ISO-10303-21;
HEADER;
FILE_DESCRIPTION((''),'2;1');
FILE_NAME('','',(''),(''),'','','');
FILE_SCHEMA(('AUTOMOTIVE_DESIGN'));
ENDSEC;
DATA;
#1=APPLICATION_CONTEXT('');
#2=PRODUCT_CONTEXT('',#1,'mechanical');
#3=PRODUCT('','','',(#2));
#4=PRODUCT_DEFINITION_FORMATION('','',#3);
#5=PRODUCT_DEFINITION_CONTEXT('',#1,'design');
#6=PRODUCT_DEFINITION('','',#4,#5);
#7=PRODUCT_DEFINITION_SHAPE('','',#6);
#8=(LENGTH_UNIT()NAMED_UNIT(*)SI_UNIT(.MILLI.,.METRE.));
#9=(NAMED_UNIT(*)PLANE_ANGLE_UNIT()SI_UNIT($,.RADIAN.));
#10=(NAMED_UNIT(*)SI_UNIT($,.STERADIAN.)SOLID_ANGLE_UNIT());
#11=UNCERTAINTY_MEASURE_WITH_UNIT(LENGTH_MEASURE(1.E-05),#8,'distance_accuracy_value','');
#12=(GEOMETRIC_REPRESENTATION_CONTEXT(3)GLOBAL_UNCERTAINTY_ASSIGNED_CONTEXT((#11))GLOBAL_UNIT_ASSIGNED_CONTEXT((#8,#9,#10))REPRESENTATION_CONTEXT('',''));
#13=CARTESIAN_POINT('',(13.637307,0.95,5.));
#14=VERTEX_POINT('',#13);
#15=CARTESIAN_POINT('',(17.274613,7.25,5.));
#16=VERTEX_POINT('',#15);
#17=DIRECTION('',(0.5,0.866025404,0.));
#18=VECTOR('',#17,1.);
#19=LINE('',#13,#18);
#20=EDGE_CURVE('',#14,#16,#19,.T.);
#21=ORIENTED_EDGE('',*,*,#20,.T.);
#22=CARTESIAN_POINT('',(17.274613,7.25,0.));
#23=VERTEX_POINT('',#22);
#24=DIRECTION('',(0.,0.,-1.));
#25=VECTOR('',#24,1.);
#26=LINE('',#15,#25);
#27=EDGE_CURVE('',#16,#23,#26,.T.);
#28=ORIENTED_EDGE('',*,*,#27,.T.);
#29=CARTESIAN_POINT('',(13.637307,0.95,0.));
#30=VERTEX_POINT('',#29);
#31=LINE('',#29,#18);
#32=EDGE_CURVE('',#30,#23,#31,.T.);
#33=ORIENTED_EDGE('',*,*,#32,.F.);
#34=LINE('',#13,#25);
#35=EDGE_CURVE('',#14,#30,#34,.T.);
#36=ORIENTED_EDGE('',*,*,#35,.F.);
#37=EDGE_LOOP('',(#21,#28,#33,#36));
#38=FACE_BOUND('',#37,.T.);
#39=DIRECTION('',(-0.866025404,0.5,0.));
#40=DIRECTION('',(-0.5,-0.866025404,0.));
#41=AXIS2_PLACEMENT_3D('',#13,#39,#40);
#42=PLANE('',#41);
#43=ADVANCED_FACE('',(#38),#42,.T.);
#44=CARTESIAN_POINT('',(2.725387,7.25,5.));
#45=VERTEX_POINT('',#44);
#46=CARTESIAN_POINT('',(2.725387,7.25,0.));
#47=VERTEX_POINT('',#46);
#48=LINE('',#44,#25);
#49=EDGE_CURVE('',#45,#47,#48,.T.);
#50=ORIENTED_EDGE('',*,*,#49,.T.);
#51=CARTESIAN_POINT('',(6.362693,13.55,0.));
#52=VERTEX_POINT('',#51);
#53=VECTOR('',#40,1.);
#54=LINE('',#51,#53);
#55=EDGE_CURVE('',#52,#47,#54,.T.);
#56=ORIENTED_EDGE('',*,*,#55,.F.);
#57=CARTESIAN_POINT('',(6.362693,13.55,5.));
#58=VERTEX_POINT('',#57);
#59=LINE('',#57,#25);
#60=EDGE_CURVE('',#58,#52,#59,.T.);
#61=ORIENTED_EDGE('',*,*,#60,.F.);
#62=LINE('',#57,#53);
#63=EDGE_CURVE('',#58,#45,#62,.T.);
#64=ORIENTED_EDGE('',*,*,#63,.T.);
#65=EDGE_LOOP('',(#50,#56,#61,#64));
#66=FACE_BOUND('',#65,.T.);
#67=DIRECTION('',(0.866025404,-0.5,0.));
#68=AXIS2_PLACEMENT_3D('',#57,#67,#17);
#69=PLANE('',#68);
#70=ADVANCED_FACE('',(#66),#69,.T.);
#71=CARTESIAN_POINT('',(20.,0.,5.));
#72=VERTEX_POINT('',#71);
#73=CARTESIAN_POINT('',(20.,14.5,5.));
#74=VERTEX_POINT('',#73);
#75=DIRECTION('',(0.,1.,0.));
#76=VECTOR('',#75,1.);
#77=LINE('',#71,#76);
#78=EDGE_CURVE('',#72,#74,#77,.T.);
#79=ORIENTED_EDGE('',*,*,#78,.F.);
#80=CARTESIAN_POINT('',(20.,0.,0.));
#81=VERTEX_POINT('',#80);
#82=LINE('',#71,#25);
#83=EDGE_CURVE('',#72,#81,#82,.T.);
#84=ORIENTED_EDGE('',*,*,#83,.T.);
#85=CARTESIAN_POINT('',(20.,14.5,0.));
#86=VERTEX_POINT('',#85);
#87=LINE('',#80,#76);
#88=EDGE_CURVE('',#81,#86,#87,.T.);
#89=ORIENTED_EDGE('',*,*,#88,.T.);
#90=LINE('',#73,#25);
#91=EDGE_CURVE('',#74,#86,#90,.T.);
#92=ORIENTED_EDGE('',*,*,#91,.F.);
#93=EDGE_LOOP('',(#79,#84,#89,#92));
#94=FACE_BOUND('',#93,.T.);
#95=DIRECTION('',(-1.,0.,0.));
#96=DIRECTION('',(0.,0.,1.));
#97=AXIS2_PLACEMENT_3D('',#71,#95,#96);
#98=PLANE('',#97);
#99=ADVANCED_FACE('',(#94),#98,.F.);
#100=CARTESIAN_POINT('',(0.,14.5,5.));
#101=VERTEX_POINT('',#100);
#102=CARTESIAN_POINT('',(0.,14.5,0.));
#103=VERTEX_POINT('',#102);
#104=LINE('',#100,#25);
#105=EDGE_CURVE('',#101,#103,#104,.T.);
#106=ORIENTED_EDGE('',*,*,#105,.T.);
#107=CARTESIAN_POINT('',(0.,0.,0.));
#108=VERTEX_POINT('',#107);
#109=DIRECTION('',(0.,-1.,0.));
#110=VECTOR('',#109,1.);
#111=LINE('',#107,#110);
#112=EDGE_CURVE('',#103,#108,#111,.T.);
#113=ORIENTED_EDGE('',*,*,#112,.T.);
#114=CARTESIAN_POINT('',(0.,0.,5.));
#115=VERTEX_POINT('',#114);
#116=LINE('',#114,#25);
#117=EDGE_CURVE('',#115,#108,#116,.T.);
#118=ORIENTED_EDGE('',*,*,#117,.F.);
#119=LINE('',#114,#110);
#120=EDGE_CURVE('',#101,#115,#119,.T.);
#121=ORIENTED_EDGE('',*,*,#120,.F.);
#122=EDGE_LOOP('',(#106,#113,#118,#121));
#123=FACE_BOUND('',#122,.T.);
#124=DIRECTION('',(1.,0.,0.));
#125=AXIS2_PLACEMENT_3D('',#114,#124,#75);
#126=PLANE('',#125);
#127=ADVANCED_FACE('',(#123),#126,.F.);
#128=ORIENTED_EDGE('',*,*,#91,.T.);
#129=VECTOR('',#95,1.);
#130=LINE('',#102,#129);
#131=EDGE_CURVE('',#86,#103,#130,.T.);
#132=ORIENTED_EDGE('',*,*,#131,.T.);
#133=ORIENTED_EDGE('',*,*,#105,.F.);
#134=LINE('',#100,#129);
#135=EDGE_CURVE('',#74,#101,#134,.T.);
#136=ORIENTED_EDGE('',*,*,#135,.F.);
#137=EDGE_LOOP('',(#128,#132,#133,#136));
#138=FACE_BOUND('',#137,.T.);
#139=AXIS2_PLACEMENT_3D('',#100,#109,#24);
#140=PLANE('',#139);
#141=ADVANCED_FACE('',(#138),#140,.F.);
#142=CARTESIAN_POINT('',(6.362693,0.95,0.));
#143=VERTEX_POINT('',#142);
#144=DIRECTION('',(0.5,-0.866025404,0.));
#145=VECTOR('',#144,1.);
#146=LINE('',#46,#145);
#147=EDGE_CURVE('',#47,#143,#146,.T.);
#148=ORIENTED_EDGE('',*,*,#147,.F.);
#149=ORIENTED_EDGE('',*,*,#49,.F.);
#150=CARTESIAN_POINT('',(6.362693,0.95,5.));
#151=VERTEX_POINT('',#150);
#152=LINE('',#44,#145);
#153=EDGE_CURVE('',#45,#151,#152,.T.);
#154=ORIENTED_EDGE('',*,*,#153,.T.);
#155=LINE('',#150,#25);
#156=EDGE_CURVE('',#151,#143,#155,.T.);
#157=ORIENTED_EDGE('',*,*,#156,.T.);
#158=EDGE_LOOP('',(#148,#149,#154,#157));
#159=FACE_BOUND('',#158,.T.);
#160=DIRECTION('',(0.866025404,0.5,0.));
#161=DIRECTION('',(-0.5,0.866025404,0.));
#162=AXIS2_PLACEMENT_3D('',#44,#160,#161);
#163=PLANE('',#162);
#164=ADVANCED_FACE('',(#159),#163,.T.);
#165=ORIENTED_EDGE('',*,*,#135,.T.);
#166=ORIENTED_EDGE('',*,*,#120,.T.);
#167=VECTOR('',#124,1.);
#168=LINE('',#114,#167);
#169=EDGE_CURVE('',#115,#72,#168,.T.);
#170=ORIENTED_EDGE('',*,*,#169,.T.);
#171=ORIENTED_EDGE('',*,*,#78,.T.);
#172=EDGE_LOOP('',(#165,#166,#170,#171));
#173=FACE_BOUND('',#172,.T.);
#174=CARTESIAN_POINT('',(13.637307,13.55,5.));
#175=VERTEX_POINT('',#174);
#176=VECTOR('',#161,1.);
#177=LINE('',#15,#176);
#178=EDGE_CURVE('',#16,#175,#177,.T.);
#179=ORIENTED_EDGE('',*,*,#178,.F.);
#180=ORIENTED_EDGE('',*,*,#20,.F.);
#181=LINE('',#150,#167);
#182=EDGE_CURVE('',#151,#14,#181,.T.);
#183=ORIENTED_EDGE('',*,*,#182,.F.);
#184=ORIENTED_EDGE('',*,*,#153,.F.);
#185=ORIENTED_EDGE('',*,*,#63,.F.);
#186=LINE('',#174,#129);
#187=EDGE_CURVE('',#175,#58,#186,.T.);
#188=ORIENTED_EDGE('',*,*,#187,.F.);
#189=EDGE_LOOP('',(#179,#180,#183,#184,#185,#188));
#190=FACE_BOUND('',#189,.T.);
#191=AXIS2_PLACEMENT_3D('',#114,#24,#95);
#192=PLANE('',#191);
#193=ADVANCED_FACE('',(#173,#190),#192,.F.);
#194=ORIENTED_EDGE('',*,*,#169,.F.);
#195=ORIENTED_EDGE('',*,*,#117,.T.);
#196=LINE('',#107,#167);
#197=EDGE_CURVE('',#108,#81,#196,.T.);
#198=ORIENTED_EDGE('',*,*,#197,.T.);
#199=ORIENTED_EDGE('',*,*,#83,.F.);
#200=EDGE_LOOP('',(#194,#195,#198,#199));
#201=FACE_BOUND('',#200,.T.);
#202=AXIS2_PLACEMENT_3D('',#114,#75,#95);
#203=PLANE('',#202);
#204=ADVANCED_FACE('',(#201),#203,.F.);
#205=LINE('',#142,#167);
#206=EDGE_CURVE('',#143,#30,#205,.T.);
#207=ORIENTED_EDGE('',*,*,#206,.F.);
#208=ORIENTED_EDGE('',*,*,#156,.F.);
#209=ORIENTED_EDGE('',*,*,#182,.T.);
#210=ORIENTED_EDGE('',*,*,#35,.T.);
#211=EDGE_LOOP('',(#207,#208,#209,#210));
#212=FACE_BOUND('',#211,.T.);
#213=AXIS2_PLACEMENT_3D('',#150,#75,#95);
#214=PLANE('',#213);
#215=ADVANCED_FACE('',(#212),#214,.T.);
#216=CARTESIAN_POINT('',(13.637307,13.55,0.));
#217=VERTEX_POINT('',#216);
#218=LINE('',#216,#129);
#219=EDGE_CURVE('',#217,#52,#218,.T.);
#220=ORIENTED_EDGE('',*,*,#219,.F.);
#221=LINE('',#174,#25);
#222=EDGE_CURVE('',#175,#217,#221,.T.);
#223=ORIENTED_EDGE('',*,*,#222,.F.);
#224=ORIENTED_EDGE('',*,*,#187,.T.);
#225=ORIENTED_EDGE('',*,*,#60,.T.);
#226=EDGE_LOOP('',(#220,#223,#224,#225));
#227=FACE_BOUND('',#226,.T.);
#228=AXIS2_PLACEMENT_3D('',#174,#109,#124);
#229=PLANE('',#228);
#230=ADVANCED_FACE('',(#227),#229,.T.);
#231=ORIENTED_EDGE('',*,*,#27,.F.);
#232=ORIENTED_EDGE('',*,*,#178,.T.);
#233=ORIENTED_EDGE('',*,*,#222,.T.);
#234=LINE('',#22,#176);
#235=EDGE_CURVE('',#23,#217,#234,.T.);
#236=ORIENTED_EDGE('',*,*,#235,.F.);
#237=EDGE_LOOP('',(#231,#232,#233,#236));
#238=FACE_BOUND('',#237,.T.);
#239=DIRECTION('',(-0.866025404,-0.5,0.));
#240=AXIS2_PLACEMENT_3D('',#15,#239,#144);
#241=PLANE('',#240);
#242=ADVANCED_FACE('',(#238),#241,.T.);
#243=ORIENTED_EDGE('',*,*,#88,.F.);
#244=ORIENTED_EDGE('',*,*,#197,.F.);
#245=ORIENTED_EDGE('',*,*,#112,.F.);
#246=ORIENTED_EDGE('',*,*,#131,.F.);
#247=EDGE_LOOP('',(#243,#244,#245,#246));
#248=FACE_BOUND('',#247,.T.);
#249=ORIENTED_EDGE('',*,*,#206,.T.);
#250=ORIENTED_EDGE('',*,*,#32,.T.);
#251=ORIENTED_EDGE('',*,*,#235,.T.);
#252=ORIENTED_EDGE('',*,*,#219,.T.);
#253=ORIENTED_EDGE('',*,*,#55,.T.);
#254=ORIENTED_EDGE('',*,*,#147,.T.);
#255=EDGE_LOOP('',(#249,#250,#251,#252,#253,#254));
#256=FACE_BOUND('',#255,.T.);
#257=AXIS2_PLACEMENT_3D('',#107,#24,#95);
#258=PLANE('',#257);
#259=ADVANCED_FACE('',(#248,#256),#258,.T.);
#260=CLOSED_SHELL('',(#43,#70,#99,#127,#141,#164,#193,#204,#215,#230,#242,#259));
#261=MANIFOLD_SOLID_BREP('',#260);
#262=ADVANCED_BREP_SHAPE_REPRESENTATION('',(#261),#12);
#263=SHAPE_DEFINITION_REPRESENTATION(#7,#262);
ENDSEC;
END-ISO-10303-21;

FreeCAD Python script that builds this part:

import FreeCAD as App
import Part
import Sketcher
Q = App.Units.Quantity


def add_polygon(sketch, points):
    """Adds a closed chain of lines whose ends are joined by coincident constraints."""
    first, n = sketch.GeometryCount, len(points)
    for a, b in zip(points, points[1:] + points[:1]):
        sketch.addGeometry(Part.LineSegment(App.Vector(*a, 0), App.Vector(*b, 0)), False)
    for i in range(n):
        sketch.addConstraint(Sketcher.Constraint("Coincident", first + i, 2, first + (i + 1) % n, 1))

doc = App.newDocument("Part")
body = doc.addObject("PartDesign::Body", "Body")

# Sketch on XY plane
sketch1 = doc.addObject("Sketcher::SketchObject", "Sketch")
body.addObject(sketch1)
sketch1.AttachmentSupport = (doc.XY_Plane, [""])
sketch1.MapMode = "FlatFace"
add_polygon(sketch1, [(0, 14.5), (0, 0), (20, 0), (20, 14.5)])  # lines 0-3
add_polygon(sketch1, [(13.637307, 13.55), (17.274613, 7.25), (13.637307, 0.95), (6.362693, 0.95), (2.725387, 7.25), (6.362693, 13.55)])  # lines 4-9
sketch1.addConstraint(Sketcher.Constraint("Vertical", 0))
sketch1.addConstraint(Sketcher.Constraint("Horizontal", 1))
sketch1.addConstraint(Sketcher.Constraint("Vertical", 2))
sketch1.addConstraint(Sketcher.Constraint("Horizontal", 3))
sketch1.addConstraint(Sketcher.Constraint("Horizontal", 6))
sketch1.addConstraint(Sketcher.Constraint("Horizontal", 9))
sketch1.addConstraint(Sketcher.Constraint("Coincident", 0, 2, -1, 1))
sketch1.addConstraint(Sketcher.Constraint("Parallel", 4, 7))
sketch1.addConstraint(Sketcher.Constraint("Parallel", 5, 8))
sketch1.addConstraint(Sketcher.Constraint("Horizontal", 4, 2, 7, 2))
sketch1.addConstraint(Sketcher.Constraint("Vertical", 6, 2, 8, 2))
sketch1.addConstraint(Sketcher.Constraint("Vertical", 5, 2, 9, 2))
sketch1.addConstraint(Sketcher.Constraint("DistanceX", 1, 1, 1, 2, 20.0))
sketch1.addConstraint(Sketcher.Constraint("Angle", 4, Q("-60 deg")))
sketch1.addConstraint(Sketcher.Constraint("DistanceY", 0, 2, 0, 1, 14.5))
sketch1.addConstraint(Sketcher.Constraint("DistanceY", 5, 2, 4, 2, 6.3))
sketch1.addConstraint(Sketcher.Constraint("DistanceY", -1, 1, 4, 2, 7.25))
sketch1.addConstraint(Sketcher.Constraint("DistanceX", 6, 2, 6, 1, 7.274613))
sketch1.addConstraint(Sketcher.Constraint("DistanceX", -1, 1, 4, 2, 17.274613))
pad1 = doc.addObject("PartDesign::Pad", "Pad")
body.addObject(pad1)
pad1.Profile = sketch1
pad1.Length = 5

doc.recompute()
